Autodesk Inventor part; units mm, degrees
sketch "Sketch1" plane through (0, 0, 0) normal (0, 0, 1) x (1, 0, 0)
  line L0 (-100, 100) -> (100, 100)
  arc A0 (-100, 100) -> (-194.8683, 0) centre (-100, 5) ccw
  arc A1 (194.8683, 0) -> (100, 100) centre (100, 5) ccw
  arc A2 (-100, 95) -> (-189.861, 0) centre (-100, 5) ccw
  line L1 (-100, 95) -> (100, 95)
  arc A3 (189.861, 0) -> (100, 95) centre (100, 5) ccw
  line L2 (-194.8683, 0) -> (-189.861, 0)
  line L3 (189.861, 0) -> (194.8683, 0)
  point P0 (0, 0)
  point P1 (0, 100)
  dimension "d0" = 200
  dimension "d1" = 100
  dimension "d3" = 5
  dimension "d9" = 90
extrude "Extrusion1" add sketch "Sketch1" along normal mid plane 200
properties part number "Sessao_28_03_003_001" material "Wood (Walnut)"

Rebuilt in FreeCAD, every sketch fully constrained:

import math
import FreeCAD as App
import Part
import Sketcher

V = App.Vector
Q = App.Units.Quantity

doc = App.newDocument("Part")
body = doc.addObject("PartDesign::Body", "Body")

# Sketch on XY plane
sketch1 = body.newObject("Sketcher::SketchObject", "Sketch")
sketch1.AttachmentSupport = (doc.getObject("XY_Plane"), [""])
sketch1.MapMode = "FlatFace"
sketch1.addGeometry([
    Part.LineSegment(V(100, 100, 0), V(-100, 100, 0)),  # 0
    Part.ArcOfCircle(Part.Circle(V(-100, 5, 0), V(0, 0, 1), 95), math.radians(90), math.radians(183.016962)),  # 1
    Part.LineSegment(V(-194.8683, 0, 0), V(-189.861, 0, 0)),  # 2
    Part.ArcOfCircle(Part.Circle(V(-100, 5, 0), V(0, 0, 1), 90), math.radians(90), math.radians(183.184739)),  # 3
    Part.LineSegment(V(-100, 95, 0), V(100, 95, 0)),  # 4
    Part.ArcOfCircle(Part.Circle(V(100, 5, 0), V(0, 0, 1), 89.999996), math.radians(-3.184739), math.radians(90)),  # 5
    Part.LineSegment(V(189.861, 0, 0), V(194.8683, 0, 0)),  # 6
    Part.ArcOfCircle(Part.Circle(V(100, 5, 0), V(0, 0, 1), 94.99997), math.radians(-3.016962), math.radians(90)),  # 7
], False)
sketch1.addConstraint([
    Sketcher.Constraint("Tangent", 0, 2, 1, 1),
    Sketcher.Constraint("Coincident", 1, 2, 2, 1),
    Sketcher.Constraint("Coincident", 2, 2, 3, 2),
    Sketcher.Constraint("Tangent", 3, 1, 4, 1),
    Sketcher.Constraint("Tangent", 4, 2, 5, 2),
    Sketcher.Constraint("Coincident", 5, 1, 6, 1),
    Sketcher.Constraint("Coincident", 6, 2, 7, 1),
    Sketcher.Constraint("Tangent", 7, 2, 0, 1),
    Sketcher.Constraint("Horizontal", 0),
    Sketcher.Constraint("Horizontal", 2),
    Sketcher.Constraint("Horizontal", 4),
    Sketcher.Constraint("Horizontal", 6),
    Sketcher.Constraint("Coincident", 3, 3, 1, 3),
    Sketcher.Constraint("Coincident", 7, 3, 5, 3),
    Sketcher.Constraint("Equal", 3, 5),
    Sketcher.Constraint("Symmetric", 2, 2, 5, 1, -1, 1),
    Sketcher.Constraint("PointOnObject", 1, 2, -1),
    Sketcher.Constraint("Radius", 3, Q("90 mm")),
    Sketcher.Constraint("DistanceX", 0, 2, 0, 1, Q("200 mm")),
    Sketcher.Constraint("DistanceY", -1, 1, 1, 3, Q("5 mm")),
    Sketcher.Constraint("DistanceY", -1, 1, 0, 2, Q("100 mm")),
])
pad1 = body.newObject("PartDesign::Pad", "Pad")
pad1.Profile = sketch1
pad1.Length = 200
pad1.Midplane = True

doc.recompute()
